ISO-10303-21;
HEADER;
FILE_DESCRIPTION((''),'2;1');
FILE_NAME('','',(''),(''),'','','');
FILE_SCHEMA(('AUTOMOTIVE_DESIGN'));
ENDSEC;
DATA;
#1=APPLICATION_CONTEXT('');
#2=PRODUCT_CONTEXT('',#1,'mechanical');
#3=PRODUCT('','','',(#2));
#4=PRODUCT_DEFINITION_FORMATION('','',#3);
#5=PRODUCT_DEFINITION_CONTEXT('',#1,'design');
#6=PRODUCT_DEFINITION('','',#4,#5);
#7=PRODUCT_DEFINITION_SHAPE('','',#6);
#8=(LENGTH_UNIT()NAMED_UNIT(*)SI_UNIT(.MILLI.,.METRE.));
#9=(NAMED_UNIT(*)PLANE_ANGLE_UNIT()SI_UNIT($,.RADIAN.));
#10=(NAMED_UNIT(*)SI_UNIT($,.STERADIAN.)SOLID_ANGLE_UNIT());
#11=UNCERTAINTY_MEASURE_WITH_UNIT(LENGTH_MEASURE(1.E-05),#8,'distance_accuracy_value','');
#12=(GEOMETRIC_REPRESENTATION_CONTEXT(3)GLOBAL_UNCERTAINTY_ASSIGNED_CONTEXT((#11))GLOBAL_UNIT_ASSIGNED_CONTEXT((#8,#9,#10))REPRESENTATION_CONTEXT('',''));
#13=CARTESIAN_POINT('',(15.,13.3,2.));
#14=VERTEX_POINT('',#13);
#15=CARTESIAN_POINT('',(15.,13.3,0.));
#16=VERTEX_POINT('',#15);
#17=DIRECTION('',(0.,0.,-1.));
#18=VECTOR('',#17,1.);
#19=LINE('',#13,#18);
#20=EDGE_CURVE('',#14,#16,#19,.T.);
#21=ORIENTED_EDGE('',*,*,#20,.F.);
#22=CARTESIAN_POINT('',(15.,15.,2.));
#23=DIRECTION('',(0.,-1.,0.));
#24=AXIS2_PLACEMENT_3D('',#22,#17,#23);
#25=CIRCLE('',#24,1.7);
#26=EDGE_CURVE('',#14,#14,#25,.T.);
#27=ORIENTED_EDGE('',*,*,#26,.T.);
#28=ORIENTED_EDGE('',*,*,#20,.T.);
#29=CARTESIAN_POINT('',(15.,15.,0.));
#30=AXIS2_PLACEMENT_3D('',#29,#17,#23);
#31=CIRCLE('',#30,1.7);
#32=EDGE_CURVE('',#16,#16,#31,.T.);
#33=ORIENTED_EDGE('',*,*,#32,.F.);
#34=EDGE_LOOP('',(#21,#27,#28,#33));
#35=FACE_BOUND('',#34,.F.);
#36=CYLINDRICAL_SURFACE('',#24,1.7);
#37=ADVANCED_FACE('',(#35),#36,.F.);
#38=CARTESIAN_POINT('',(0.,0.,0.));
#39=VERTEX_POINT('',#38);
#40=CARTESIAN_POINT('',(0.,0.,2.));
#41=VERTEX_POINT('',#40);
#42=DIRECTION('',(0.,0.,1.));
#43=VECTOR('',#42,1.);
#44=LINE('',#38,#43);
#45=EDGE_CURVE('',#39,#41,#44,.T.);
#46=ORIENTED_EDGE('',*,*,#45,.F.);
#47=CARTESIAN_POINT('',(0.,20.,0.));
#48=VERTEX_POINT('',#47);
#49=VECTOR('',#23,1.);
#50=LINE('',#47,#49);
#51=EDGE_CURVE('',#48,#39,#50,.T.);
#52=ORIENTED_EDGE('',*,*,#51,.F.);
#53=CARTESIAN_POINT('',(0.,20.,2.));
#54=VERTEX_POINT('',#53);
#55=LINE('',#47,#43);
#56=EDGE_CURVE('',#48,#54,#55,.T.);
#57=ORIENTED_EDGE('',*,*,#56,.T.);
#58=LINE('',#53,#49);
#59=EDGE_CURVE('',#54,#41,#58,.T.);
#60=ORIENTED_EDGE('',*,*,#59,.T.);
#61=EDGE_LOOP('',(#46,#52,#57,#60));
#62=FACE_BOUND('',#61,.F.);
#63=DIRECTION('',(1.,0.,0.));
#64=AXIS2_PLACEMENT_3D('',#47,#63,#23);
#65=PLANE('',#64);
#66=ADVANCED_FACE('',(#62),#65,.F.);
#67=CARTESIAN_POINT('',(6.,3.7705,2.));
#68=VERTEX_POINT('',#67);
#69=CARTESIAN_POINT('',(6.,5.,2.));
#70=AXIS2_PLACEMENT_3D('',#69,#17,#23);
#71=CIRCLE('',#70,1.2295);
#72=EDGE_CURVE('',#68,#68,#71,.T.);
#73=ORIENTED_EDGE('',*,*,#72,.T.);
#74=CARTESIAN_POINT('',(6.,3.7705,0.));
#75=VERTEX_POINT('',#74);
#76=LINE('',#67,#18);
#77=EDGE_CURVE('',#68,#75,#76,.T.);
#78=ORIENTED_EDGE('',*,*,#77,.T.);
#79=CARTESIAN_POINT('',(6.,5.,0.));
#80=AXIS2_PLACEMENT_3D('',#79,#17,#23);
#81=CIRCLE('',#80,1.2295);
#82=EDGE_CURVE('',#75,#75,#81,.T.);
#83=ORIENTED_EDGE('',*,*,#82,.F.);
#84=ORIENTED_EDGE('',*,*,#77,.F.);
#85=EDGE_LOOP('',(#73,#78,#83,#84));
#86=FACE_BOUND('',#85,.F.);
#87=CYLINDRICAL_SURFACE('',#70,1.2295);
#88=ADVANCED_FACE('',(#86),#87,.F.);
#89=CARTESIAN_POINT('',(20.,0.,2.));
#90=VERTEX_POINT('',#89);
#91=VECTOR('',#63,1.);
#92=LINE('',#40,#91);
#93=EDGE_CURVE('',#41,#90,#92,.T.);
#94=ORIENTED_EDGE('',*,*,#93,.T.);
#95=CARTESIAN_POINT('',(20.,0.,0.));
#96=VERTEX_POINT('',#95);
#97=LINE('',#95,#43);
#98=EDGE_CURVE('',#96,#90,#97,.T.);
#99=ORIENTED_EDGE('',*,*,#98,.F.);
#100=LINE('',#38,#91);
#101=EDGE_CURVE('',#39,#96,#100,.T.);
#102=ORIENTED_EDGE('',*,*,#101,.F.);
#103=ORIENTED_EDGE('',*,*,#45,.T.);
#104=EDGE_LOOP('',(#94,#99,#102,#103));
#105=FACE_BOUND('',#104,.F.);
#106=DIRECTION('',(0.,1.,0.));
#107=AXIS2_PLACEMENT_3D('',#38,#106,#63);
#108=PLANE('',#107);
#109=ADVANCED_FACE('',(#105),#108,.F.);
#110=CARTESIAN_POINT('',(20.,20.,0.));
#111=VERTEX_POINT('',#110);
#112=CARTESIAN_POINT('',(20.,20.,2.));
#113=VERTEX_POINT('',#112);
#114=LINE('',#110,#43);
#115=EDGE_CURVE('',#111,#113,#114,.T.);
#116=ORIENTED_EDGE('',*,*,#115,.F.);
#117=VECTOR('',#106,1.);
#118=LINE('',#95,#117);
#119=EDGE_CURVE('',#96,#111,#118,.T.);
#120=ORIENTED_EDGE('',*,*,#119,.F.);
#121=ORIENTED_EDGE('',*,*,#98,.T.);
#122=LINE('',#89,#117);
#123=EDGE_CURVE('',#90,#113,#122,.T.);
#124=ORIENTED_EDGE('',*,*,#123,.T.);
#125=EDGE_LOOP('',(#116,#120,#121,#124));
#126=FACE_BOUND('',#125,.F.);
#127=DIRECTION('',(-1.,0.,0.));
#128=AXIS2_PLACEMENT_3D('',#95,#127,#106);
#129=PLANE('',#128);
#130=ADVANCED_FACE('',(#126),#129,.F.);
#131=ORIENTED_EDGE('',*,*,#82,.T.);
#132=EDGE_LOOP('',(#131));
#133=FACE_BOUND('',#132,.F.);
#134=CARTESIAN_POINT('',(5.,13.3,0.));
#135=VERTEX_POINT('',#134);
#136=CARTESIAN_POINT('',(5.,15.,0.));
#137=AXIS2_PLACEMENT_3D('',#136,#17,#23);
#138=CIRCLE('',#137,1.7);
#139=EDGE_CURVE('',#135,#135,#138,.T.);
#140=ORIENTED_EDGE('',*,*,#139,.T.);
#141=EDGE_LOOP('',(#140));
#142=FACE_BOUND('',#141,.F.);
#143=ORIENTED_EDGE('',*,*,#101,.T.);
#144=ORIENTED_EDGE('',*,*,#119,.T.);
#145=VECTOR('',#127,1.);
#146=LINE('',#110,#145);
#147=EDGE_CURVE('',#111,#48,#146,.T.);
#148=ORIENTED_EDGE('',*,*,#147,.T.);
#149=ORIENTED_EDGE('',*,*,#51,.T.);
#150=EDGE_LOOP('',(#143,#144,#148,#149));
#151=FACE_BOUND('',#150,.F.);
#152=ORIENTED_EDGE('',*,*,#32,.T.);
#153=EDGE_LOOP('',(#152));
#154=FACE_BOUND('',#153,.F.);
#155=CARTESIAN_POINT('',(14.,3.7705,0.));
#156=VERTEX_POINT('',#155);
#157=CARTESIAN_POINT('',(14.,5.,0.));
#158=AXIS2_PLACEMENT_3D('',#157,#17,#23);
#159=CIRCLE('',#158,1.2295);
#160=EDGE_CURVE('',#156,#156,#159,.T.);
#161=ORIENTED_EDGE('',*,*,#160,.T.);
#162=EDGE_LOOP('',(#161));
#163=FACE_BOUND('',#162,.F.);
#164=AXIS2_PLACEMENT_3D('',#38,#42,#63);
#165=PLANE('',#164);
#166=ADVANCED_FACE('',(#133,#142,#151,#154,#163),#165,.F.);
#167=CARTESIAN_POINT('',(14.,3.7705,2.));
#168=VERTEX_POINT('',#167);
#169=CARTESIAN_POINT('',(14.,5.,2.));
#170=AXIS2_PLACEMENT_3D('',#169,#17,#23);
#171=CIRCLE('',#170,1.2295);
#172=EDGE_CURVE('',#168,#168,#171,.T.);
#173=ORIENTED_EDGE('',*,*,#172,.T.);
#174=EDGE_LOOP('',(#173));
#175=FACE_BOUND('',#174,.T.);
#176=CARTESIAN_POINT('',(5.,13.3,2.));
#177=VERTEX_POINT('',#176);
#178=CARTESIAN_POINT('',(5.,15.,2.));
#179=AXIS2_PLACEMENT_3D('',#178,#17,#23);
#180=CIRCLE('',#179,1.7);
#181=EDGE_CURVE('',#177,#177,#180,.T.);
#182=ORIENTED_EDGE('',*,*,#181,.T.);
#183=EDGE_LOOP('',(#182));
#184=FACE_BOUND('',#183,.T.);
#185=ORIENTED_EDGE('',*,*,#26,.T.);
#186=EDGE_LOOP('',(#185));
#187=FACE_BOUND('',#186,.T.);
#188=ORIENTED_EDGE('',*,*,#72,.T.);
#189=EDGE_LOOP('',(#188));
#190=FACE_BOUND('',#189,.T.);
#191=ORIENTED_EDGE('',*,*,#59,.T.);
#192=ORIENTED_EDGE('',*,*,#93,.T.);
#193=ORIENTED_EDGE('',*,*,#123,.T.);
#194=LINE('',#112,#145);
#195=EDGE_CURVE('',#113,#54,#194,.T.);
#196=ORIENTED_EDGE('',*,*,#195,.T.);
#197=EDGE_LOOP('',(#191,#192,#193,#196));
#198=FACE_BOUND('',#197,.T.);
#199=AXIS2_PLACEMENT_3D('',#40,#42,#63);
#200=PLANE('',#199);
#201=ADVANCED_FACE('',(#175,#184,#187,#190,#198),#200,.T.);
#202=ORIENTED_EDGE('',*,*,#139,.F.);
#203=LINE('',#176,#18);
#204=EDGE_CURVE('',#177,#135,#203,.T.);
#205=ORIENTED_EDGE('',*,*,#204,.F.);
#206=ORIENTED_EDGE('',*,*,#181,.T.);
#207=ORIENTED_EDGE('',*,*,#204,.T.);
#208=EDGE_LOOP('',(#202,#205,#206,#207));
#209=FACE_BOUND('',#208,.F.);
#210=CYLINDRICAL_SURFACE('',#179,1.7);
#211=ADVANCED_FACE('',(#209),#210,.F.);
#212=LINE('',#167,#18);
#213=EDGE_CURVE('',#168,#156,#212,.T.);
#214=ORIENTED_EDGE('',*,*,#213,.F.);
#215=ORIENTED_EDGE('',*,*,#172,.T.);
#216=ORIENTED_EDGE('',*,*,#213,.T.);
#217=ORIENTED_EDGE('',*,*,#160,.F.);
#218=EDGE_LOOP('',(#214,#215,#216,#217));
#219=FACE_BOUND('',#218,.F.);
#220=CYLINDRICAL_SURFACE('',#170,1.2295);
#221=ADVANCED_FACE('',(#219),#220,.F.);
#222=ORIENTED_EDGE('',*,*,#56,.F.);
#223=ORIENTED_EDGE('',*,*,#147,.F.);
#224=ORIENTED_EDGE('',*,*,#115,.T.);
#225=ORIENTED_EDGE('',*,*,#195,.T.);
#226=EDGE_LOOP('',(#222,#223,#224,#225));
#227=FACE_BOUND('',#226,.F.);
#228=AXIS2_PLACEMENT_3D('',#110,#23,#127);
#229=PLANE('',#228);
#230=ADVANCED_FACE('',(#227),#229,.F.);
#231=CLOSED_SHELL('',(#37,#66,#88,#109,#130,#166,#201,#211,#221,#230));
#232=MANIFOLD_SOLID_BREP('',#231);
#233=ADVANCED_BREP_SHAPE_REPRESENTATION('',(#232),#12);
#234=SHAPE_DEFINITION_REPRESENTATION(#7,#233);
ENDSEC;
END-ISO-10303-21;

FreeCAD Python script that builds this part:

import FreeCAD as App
import Part
import Sketcher
from FreeCAD import Vector


def add_polygon(sketch, points):
    """Adds a closed chain of lines whose ends are joined by coincident constraints."""
    first, n = sketch.GeometryCount, len(points)
    for a, b in zip(points, points[1:] + points[:1]):
        sketch.addGeometry(Part.LineSegment(App.Vector(*a, 0), App.Vector(*b, 0)), False)
    for i in range(n):
        sketch.addConstraint(Sketcher.Constraint("Coincident", first + i, 2, first + (i + 1) % n, 1))

doc = App.newDocument("Part")
body = doc.addObject("PartDesign::Body", "Body")

sketch1 = body.newObject("Sketcher::SketchObject", "Sketch")
sketch1.AttachmentSupport = (doc.getObject("XY_Plane"), [""])
sketch1.MapMode = "FlatFace"
add_polygon(sketch1, [(0, 20), (0, 0), (20, 0), (20, 20)])
sketch1.addConstraint([
    Sketcher.Constraint("Vertical", 0),
    Sketcher.Constraint("Horizontal", 1),
    Sketcher.Constraint("Vertical", 2),
    Sketcher.Constraint("Horizontal", 3),
    Sketcher.Constraint("Coincident", 0, 2, -1, 1),
    Sketcher.Constraint("Equal", 3, 0),
    Sketcher.Constraint("DistanceX", 1, 1, 1, 2, 20.0),
])
pad1 = body.newObject("PartDesign::Pad", "Pad")
pad1.Profile = sketch1
pad1.Length = 2

sketch2 = body.newObject("Sketcher::SketchObject", "Sketch001")
sketch2.AttachmentSupport = (doc.getObject("XY_Plane"), [""])
sketch2.MapMode = "FlatFace"
sketch2.AttachmentOffset = App.Placement(Vector(0, 0, 2), App.Rotation())
sketch2.addGeometry([
    Part.Circle(Vector(5, 15, 0), Vector(0, 0, 1), 1.7),
    Part.Circle(Vector(15, 15, 0), Vector(0, 0, 1), 1.7),
], False)
sketch2.addConstraint([
    Sketcher.Constraint("Equal", 0, 1),
    Sketcher.Constraint("Horizontal", 0, 3, 1, 3),
    Sketcher.Constraint("Diameter", 0, 3.4),
    Sketcher.Constraint("DistanceX", -1, 1, 0, 3, 5.0),
    Sketcher.Constraint("DistanceY", -1, 1, 0, 3, 15.0),
    Sketcher.Constraint("DistanceX", -1, 1, 1, 3, 15.0),
])
doc.recompute()
hole = body.newObject("PartDesign::Hole", "Hole")
hole.Profile = sketch2
hole.ThreadType = "None"
hole.Diameter = 3.4
hole.DepthType = "ThroughAll"

sketch3 = body.newObject("Sketcher::SketchObject", "Sketch002")
sketch3.AttachmentSupport = (doc.getObject("XY_Plane"), [""])
sketch3.MapMode = "FlatFace"
sketch3.AttachmentOffset = App.Placement(Vector(0, 0, 2), App.Rotation())
sketch3.addGeometry([
    Part.Circle(Vector(6, 5, 0), Vector(0, 0, 1), 1.2295),
    Part.Circle(Vector(14, 5, 0), Vector(0, 0, 1), 1.2295),
], False)
sketch3.addConstraint([
    Sketcher.Constraint("Equal", 0, 1),
    Sketcher.Constraint("Horizontal", 0, 3, 1, 3),
    Sketcher.Constraint("Diameter", 0, 2.459),
    Sketcher.Constraint("DistanceX", -1, 1, 0, 3, 6.0),
    Sketcher.Constraint("DistanceY", -1, 1, 0, 3, 5.0),
    Sketcher.Constraint("DistanceX", -1, 1, 1, 3, 14.0),
])
doc.recompute()
hole2 = body.newObject("PartDesign::Hole", "Hole001")
hole2.Profile = sketch3
hole2.ThreadType = "None"
hole2.Diameter = 2.459
hole2.DepthType = "ThroughAll"

doc.recompute()
